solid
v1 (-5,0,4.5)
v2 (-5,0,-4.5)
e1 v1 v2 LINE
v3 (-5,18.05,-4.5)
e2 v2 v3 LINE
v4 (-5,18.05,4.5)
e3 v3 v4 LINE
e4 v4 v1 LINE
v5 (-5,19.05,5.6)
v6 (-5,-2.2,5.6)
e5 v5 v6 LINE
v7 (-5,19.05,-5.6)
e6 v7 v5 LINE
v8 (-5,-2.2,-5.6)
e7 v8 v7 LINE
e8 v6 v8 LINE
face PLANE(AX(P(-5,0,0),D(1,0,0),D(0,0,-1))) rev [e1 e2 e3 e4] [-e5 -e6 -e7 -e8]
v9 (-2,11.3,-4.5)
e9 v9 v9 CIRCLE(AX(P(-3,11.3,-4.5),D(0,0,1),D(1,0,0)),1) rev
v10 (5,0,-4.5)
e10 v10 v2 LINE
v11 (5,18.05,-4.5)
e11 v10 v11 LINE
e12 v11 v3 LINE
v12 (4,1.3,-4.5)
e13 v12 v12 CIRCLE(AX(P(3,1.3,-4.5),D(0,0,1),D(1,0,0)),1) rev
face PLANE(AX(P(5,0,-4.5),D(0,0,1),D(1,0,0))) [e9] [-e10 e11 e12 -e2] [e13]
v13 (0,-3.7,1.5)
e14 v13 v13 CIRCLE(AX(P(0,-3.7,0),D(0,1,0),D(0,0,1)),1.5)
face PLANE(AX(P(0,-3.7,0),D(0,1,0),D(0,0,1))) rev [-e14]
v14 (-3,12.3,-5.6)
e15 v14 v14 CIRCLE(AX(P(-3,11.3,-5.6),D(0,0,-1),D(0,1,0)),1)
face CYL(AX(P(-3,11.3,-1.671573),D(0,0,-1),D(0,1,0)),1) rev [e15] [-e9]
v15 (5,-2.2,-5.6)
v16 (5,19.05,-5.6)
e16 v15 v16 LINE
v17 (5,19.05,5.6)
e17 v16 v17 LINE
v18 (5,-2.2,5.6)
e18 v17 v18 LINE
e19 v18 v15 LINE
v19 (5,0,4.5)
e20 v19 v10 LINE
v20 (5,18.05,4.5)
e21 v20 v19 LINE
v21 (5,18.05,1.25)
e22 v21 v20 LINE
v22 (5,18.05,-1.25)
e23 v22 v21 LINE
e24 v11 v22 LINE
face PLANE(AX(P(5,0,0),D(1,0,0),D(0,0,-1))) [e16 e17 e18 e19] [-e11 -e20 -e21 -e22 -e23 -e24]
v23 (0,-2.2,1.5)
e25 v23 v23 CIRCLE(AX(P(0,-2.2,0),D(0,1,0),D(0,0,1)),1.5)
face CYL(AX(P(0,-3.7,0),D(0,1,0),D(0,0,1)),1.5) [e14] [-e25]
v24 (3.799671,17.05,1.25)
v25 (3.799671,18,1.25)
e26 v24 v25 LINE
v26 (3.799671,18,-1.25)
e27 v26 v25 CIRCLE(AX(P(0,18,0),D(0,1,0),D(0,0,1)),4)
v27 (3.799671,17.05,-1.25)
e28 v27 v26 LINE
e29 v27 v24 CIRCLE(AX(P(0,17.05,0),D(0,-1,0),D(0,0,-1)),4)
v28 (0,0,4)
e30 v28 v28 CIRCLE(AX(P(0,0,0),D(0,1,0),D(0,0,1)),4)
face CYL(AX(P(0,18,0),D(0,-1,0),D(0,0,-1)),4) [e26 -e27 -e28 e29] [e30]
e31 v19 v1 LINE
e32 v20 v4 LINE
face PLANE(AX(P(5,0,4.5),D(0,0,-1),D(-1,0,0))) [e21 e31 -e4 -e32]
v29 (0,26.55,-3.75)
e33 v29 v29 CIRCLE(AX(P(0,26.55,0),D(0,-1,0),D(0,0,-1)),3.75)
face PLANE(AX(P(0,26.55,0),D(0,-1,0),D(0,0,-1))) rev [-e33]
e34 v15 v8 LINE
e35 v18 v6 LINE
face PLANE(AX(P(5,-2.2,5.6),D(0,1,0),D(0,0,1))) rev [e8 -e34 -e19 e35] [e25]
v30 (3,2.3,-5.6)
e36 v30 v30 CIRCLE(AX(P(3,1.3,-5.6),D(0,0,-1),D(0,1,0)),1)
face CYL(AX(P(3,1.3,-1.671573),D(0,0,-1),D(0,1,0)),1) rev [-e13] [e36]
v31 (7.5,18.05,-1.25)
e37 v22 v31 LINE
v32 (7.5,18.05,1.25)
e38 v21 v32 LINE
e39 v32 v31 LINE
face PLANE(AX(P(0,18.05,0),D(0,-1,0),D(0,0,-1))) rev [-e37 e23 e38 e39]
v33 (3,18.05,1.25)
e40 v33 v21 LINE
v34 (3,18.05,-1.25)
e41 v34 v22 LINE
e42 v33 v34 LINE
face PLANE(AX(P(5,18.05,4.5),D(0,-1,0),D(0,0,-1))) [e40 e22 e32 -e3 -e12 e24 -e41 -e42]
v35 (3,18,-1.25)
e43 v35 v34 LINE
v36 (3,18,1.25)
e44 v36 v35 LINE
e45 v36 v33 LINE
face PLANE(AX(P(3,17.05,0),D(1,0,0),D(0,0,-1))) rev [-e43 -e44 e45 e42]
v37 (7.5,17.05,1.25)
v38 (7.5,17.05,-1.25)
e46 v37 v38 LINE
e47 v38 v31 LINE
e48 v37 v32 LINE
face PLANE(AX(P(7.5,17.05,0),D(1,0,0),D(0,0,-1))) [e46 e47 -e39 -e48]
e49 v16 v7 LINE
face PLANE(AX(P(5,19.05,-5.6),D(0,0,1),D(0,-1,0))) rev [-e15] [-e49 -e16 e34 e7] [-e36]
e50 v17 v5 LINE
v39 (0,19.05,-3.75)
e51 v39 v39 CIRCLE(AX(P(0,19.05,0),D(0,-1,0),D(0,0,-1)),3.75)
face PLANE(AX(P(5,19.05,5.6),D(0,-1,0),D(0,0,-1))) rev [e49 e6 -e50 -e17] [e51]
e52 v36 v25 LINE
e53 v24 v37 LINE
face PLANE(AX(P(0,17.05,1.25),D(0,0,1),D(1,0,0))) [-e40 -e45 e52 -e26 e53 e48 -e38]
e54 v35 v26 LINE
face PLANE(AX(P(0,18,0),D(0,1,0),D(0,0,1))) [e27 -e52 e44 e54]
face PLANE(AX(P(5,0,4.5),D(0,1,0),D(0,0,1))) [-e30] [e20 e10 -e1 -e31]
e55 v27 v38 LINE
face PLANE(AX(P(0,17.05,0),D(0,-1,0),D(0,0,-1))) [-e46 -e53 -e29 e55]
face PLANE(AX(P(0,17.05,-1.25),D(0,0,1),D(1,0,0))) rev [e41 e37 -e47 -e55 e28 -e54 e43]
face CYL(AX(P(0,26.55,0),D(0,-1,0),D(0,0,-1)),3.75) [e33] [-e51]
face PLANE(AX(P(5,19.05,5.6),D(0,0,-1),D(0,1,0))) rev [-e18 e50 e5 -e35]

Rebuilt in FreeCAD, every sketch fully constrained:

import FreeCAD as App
import Part
import Sketcher
from FreeCAD import Vector

doc = App.newDocument("Part")
body = doc.addObject("PartDesign::Body", "Body")

# Sketch on XZ plane
sketch1 = body.newObject("Sketcher::SketchObject", "Sketch")
sketch1.AttachmentSupport = (doc.getObject("XZ_Plane"), [""])
sketch1.MapMode = "FlatFace"
sketch1.addGeometry(Part.Circle(Vector(0, 0, 0), Vector(0, 0, 1), 4), False)
sketch1.addConstraint([
    Sketcher.Constraint("Coincident", 0, 3, -1, 1),
    Sketcher.Constraint("Diameter", 0, 8.0),
])
pad1 = body.newObject("PartDesign::Pad", "Pad")
pad1.Profile = sketch1
pad1.Length = 18
pad1.Reversed = True

# Sketch on YZ plane
sketch2 = body.newObject("Sketcher::SketchObject", "Sketch001")
sketch2.AttachmentSupport = (doc.getObject("YZ_Plane"), [""])
sketch2.MapMode = "FlatFace"
sketch2.addGeometry([
    Part.LineSegment(Vector(19, 6, 0), Vector(-2, 6, 0)),  # 0
    Part.LineSegment(Vector(-2, 6, 0), Vector(-2, -6, 0)),  # 1
    Part.LineSegment(Vector(-2, -6, 0), Vector(19, -6, 0)),  # 2
    Part.LineSegment(Vector(19, -6, 0), Vector(19, 6, 0)),  # 3
    Part.LineSegment(Vector(0, -4, 0), Vector(0, 4, 0)),  # 4
    Part.LineSegment(Vector(0, 4, 0), Vector(18, 4, 0)),  # 5
    Part.LineSegment(Vector(18, 4, 0), Vector(18, -4, 0)),  # 6
    Part.LineSegment(Vector(18, -4, 0), Vector(0, -4, 0)),  # 7
], False)
sketch2.addConstraint([
    Sketcher.Constraint("Coincident", 0, 2, 1, 1),
    Sketcher.Constraint("Coincident", 1, 2, 2, 1),
    Sketcher.Constraint("Coincident", 2, 2, 3, 1),
    Sketcher.Constraint("Coincident", 3, 2, 0, 1),
    Sketcher.Constraint("Coincident", 4, 2, 5, 1),
    Sketcher.Constraint("Coincident", 5, 2, 6, 1),
    Sketcher.Constraint("Coincident", 6, 2, 7, 1),
    Sketcher.Constraint("Coincident", 7, 2, 4, 1),
    Sketcher.Constraint("Horizontal", 0),
    Sketcher.Constraint("Vertical", 1),
    Sketcher.Constraint("Horizontal", 2),
    Sketcher.Constraint("Vertical", 3),
    Sketcher.Constraint("Vertical", 4),
    Sketcher.Constraint("Horizontal", 5),
    Sketcher.Constraint("Vertical", 6),
    Sketcher.Constraint("Horizontal", 7),
    Sketcher.Constraint("Symmetric", 4, 2, 7, 2, -1, 1),
    Sketcher.Constraint("DistanceY", 4, 1, 4, 2, 9.0),
    Sketcher.Constraint("DistanceY", 1, 2, 1, 1, 11.2),
    Sketcher.Constraint("DistanceX", 5, 2, 3, 2, 1.0),
    Sketcher.Constraint("DistanceX", 0, 2, 0, 1, 21.25),
    Sketcher.Constraint("DistanceX", 5, 1, 5, 2, 18.05),
    Sketcher.Constraint("DistanceY", -1, 1, 0, 2, 5.6),
])
pad2 = body.newObject("PartDesign::Pad", "Pad001")
pad2.Profile = sketch2
pad2.Length = 10
pad2.Midplane = True

# Sketch on XZ plane
sketch3 = body.newObject("Sketcher::SketchObject", "Sketch002")
sketch3.AttachmentSupport = (doc.getObject("XZ_Plane"), [""])
sketch3.MapMode = "FlatFace"
sketch3.AttachmentOffset = App.Placement(Vector(0, 0, -19.05), App.Rotation())
sketch3.addGeometry(Part.Circle(Vector(0, 0, 0), Vector(0, 0, 1), 3.8), False)
sketch3.addConstraint([
    Sketcher.Constraint("Coincident", 0, 3, -1, 1),
    Sketcher.Constraint("Diameter", 0, 7.5),
])
pad3 = body.newObject("PartDesign::Pad", "Pad002")
pad3.Profile = sketch3
pad3.Length = 7.5
pad3.Reversed = True

# Sketch on XZ plane
sketch4 = body.newObject("Sketcher::SketchObject", "Sketch003")
sketch4.AttachmentSupport = (doc.getObject("XZ_Plane"), [""])
sketch4.MapMode = "FlatFace"
sketch4.AttachmentOffset = App.Placement(Vector(0, 0, 2.2), App.Rotation())
sketch4.addGeometry(Part.Circle(Vector(0, 0, 0), Vector(0, 0, 1), 1.5), False)
sketch4.addConstraint([
    Sketcher.Constraint("Coincident", 0, 3, -1, 1),
    Sketcher.Constraint("Diameter", 0, 3.0),
])
pad4 = body.newObject("PartDesign::Pad", "Pad003")
pad4.Profile = sketch4
pad4.Length = 1.5

# Sketch on XY plane
sketch5 = body.newObject("Sketcher::SketchObject", "Sketch004")
sketch5.AttachmentSupport = (doc.getObject("XY_Plane"), [""])
sketch5.MapMode = "FlatFace"
sketch5.AttachmentOffset = App.Placement(Vector(0, 0, -5.6), App.Rotation())
sketch5.addGeometry([
    Part.Circle(Vector(3, 1.3, 0), Vector(0, 0, 1), 1),
    Part.Circle(Vector(-3, 11.3, 0), Vector(0, 0, 1), 1),
], False)
sketch5.addConstraint([
    Sketcher.Constraint("Equal", 0, 1),
    Sketcher.Constraint("Diameter", 0, 2.0),
    Sketcher.Constraint("DistanceX", -1, 1, 0, 3, 3.0),
    Sketcher.Constraint("DistanceX", 1, 3, -1, 1, 3.0),
    Sketcher.Constraint("DistanceY", 0, 3, 1, 3, 10.0),
    Sketcher.Constraint("DistanceY", -1, 1, 0, 3, 1.3),
])
pocket1 = body.newObject("PartDesign::Pocket", "Pocket")
pocket1.Profile = sketch5
pocket1.Length = 1.1
pocket1.Reversed = True

# Sketch on XZ plane
sketch6 = body.newObject("Sketcher::SketchObject", "Sketch005")
sketch6.AttachmentSupport = (doc.getObject("XZ_Plane"), [""])
sketch6.MapMode = "FlatFace"
sketch6.AttachmentOffset = App.Placement(Vector(0, 0, -18.05), App.Rotation())
sketch6.addGeometry([
    Part.LineSegment(Vector(7.5, -1.2, 0), Vector(7.5, 1.2, 0)),
    Part.LineSegment(Vector(7.5, 1.2, 0), Vector(3, 1.2, 0)),
    Part.LineSegment(Vector(3, 1.2, 0), Vector(3, -1.2, 0)),
    Part.LineSegment(Vector(3, -1.2, 0), Vector(7.5, -1.2, 0)),
], False)
sketch6.addConstraint([
    Sketcher.Constraint("Coincident", 0, 2, 1, 1),
    Sketcher.Constraint("Coincident", 1, 2, 2, 1),
    Sketcher.Constraint("Coincident", 2, 2, 3, 1),
    Sketcher.Constraint("Coincident", 3, 2, 0, 1),
    Sketcher.Constraint("Vertical", 0),
    Sketcher.Constraint("Horizontal", 1),
    Sketcher.Constraint("Vertical", 2),
    Sketcher.Constraint("Horizontal", 3),
    Sketcher.Constraint("DistanceX", 1, 2, 1, 1, 4.5),
    Sketcher.Constraint("DistanceY", 0, 1, 0, 2, 2.5),
    Sketcher.Constraint("DistanceX", -1, 1, 1, 2, 3.0),
    Sketcher.Constraint("DistanceY", -1, 1, 0, 2, 1.25),
])
pad5 = body.newObject("PartDesign::Pad", "Pad004")
pad5.Profile = sketch6
pad5.Length = 1

doc.recompute()
